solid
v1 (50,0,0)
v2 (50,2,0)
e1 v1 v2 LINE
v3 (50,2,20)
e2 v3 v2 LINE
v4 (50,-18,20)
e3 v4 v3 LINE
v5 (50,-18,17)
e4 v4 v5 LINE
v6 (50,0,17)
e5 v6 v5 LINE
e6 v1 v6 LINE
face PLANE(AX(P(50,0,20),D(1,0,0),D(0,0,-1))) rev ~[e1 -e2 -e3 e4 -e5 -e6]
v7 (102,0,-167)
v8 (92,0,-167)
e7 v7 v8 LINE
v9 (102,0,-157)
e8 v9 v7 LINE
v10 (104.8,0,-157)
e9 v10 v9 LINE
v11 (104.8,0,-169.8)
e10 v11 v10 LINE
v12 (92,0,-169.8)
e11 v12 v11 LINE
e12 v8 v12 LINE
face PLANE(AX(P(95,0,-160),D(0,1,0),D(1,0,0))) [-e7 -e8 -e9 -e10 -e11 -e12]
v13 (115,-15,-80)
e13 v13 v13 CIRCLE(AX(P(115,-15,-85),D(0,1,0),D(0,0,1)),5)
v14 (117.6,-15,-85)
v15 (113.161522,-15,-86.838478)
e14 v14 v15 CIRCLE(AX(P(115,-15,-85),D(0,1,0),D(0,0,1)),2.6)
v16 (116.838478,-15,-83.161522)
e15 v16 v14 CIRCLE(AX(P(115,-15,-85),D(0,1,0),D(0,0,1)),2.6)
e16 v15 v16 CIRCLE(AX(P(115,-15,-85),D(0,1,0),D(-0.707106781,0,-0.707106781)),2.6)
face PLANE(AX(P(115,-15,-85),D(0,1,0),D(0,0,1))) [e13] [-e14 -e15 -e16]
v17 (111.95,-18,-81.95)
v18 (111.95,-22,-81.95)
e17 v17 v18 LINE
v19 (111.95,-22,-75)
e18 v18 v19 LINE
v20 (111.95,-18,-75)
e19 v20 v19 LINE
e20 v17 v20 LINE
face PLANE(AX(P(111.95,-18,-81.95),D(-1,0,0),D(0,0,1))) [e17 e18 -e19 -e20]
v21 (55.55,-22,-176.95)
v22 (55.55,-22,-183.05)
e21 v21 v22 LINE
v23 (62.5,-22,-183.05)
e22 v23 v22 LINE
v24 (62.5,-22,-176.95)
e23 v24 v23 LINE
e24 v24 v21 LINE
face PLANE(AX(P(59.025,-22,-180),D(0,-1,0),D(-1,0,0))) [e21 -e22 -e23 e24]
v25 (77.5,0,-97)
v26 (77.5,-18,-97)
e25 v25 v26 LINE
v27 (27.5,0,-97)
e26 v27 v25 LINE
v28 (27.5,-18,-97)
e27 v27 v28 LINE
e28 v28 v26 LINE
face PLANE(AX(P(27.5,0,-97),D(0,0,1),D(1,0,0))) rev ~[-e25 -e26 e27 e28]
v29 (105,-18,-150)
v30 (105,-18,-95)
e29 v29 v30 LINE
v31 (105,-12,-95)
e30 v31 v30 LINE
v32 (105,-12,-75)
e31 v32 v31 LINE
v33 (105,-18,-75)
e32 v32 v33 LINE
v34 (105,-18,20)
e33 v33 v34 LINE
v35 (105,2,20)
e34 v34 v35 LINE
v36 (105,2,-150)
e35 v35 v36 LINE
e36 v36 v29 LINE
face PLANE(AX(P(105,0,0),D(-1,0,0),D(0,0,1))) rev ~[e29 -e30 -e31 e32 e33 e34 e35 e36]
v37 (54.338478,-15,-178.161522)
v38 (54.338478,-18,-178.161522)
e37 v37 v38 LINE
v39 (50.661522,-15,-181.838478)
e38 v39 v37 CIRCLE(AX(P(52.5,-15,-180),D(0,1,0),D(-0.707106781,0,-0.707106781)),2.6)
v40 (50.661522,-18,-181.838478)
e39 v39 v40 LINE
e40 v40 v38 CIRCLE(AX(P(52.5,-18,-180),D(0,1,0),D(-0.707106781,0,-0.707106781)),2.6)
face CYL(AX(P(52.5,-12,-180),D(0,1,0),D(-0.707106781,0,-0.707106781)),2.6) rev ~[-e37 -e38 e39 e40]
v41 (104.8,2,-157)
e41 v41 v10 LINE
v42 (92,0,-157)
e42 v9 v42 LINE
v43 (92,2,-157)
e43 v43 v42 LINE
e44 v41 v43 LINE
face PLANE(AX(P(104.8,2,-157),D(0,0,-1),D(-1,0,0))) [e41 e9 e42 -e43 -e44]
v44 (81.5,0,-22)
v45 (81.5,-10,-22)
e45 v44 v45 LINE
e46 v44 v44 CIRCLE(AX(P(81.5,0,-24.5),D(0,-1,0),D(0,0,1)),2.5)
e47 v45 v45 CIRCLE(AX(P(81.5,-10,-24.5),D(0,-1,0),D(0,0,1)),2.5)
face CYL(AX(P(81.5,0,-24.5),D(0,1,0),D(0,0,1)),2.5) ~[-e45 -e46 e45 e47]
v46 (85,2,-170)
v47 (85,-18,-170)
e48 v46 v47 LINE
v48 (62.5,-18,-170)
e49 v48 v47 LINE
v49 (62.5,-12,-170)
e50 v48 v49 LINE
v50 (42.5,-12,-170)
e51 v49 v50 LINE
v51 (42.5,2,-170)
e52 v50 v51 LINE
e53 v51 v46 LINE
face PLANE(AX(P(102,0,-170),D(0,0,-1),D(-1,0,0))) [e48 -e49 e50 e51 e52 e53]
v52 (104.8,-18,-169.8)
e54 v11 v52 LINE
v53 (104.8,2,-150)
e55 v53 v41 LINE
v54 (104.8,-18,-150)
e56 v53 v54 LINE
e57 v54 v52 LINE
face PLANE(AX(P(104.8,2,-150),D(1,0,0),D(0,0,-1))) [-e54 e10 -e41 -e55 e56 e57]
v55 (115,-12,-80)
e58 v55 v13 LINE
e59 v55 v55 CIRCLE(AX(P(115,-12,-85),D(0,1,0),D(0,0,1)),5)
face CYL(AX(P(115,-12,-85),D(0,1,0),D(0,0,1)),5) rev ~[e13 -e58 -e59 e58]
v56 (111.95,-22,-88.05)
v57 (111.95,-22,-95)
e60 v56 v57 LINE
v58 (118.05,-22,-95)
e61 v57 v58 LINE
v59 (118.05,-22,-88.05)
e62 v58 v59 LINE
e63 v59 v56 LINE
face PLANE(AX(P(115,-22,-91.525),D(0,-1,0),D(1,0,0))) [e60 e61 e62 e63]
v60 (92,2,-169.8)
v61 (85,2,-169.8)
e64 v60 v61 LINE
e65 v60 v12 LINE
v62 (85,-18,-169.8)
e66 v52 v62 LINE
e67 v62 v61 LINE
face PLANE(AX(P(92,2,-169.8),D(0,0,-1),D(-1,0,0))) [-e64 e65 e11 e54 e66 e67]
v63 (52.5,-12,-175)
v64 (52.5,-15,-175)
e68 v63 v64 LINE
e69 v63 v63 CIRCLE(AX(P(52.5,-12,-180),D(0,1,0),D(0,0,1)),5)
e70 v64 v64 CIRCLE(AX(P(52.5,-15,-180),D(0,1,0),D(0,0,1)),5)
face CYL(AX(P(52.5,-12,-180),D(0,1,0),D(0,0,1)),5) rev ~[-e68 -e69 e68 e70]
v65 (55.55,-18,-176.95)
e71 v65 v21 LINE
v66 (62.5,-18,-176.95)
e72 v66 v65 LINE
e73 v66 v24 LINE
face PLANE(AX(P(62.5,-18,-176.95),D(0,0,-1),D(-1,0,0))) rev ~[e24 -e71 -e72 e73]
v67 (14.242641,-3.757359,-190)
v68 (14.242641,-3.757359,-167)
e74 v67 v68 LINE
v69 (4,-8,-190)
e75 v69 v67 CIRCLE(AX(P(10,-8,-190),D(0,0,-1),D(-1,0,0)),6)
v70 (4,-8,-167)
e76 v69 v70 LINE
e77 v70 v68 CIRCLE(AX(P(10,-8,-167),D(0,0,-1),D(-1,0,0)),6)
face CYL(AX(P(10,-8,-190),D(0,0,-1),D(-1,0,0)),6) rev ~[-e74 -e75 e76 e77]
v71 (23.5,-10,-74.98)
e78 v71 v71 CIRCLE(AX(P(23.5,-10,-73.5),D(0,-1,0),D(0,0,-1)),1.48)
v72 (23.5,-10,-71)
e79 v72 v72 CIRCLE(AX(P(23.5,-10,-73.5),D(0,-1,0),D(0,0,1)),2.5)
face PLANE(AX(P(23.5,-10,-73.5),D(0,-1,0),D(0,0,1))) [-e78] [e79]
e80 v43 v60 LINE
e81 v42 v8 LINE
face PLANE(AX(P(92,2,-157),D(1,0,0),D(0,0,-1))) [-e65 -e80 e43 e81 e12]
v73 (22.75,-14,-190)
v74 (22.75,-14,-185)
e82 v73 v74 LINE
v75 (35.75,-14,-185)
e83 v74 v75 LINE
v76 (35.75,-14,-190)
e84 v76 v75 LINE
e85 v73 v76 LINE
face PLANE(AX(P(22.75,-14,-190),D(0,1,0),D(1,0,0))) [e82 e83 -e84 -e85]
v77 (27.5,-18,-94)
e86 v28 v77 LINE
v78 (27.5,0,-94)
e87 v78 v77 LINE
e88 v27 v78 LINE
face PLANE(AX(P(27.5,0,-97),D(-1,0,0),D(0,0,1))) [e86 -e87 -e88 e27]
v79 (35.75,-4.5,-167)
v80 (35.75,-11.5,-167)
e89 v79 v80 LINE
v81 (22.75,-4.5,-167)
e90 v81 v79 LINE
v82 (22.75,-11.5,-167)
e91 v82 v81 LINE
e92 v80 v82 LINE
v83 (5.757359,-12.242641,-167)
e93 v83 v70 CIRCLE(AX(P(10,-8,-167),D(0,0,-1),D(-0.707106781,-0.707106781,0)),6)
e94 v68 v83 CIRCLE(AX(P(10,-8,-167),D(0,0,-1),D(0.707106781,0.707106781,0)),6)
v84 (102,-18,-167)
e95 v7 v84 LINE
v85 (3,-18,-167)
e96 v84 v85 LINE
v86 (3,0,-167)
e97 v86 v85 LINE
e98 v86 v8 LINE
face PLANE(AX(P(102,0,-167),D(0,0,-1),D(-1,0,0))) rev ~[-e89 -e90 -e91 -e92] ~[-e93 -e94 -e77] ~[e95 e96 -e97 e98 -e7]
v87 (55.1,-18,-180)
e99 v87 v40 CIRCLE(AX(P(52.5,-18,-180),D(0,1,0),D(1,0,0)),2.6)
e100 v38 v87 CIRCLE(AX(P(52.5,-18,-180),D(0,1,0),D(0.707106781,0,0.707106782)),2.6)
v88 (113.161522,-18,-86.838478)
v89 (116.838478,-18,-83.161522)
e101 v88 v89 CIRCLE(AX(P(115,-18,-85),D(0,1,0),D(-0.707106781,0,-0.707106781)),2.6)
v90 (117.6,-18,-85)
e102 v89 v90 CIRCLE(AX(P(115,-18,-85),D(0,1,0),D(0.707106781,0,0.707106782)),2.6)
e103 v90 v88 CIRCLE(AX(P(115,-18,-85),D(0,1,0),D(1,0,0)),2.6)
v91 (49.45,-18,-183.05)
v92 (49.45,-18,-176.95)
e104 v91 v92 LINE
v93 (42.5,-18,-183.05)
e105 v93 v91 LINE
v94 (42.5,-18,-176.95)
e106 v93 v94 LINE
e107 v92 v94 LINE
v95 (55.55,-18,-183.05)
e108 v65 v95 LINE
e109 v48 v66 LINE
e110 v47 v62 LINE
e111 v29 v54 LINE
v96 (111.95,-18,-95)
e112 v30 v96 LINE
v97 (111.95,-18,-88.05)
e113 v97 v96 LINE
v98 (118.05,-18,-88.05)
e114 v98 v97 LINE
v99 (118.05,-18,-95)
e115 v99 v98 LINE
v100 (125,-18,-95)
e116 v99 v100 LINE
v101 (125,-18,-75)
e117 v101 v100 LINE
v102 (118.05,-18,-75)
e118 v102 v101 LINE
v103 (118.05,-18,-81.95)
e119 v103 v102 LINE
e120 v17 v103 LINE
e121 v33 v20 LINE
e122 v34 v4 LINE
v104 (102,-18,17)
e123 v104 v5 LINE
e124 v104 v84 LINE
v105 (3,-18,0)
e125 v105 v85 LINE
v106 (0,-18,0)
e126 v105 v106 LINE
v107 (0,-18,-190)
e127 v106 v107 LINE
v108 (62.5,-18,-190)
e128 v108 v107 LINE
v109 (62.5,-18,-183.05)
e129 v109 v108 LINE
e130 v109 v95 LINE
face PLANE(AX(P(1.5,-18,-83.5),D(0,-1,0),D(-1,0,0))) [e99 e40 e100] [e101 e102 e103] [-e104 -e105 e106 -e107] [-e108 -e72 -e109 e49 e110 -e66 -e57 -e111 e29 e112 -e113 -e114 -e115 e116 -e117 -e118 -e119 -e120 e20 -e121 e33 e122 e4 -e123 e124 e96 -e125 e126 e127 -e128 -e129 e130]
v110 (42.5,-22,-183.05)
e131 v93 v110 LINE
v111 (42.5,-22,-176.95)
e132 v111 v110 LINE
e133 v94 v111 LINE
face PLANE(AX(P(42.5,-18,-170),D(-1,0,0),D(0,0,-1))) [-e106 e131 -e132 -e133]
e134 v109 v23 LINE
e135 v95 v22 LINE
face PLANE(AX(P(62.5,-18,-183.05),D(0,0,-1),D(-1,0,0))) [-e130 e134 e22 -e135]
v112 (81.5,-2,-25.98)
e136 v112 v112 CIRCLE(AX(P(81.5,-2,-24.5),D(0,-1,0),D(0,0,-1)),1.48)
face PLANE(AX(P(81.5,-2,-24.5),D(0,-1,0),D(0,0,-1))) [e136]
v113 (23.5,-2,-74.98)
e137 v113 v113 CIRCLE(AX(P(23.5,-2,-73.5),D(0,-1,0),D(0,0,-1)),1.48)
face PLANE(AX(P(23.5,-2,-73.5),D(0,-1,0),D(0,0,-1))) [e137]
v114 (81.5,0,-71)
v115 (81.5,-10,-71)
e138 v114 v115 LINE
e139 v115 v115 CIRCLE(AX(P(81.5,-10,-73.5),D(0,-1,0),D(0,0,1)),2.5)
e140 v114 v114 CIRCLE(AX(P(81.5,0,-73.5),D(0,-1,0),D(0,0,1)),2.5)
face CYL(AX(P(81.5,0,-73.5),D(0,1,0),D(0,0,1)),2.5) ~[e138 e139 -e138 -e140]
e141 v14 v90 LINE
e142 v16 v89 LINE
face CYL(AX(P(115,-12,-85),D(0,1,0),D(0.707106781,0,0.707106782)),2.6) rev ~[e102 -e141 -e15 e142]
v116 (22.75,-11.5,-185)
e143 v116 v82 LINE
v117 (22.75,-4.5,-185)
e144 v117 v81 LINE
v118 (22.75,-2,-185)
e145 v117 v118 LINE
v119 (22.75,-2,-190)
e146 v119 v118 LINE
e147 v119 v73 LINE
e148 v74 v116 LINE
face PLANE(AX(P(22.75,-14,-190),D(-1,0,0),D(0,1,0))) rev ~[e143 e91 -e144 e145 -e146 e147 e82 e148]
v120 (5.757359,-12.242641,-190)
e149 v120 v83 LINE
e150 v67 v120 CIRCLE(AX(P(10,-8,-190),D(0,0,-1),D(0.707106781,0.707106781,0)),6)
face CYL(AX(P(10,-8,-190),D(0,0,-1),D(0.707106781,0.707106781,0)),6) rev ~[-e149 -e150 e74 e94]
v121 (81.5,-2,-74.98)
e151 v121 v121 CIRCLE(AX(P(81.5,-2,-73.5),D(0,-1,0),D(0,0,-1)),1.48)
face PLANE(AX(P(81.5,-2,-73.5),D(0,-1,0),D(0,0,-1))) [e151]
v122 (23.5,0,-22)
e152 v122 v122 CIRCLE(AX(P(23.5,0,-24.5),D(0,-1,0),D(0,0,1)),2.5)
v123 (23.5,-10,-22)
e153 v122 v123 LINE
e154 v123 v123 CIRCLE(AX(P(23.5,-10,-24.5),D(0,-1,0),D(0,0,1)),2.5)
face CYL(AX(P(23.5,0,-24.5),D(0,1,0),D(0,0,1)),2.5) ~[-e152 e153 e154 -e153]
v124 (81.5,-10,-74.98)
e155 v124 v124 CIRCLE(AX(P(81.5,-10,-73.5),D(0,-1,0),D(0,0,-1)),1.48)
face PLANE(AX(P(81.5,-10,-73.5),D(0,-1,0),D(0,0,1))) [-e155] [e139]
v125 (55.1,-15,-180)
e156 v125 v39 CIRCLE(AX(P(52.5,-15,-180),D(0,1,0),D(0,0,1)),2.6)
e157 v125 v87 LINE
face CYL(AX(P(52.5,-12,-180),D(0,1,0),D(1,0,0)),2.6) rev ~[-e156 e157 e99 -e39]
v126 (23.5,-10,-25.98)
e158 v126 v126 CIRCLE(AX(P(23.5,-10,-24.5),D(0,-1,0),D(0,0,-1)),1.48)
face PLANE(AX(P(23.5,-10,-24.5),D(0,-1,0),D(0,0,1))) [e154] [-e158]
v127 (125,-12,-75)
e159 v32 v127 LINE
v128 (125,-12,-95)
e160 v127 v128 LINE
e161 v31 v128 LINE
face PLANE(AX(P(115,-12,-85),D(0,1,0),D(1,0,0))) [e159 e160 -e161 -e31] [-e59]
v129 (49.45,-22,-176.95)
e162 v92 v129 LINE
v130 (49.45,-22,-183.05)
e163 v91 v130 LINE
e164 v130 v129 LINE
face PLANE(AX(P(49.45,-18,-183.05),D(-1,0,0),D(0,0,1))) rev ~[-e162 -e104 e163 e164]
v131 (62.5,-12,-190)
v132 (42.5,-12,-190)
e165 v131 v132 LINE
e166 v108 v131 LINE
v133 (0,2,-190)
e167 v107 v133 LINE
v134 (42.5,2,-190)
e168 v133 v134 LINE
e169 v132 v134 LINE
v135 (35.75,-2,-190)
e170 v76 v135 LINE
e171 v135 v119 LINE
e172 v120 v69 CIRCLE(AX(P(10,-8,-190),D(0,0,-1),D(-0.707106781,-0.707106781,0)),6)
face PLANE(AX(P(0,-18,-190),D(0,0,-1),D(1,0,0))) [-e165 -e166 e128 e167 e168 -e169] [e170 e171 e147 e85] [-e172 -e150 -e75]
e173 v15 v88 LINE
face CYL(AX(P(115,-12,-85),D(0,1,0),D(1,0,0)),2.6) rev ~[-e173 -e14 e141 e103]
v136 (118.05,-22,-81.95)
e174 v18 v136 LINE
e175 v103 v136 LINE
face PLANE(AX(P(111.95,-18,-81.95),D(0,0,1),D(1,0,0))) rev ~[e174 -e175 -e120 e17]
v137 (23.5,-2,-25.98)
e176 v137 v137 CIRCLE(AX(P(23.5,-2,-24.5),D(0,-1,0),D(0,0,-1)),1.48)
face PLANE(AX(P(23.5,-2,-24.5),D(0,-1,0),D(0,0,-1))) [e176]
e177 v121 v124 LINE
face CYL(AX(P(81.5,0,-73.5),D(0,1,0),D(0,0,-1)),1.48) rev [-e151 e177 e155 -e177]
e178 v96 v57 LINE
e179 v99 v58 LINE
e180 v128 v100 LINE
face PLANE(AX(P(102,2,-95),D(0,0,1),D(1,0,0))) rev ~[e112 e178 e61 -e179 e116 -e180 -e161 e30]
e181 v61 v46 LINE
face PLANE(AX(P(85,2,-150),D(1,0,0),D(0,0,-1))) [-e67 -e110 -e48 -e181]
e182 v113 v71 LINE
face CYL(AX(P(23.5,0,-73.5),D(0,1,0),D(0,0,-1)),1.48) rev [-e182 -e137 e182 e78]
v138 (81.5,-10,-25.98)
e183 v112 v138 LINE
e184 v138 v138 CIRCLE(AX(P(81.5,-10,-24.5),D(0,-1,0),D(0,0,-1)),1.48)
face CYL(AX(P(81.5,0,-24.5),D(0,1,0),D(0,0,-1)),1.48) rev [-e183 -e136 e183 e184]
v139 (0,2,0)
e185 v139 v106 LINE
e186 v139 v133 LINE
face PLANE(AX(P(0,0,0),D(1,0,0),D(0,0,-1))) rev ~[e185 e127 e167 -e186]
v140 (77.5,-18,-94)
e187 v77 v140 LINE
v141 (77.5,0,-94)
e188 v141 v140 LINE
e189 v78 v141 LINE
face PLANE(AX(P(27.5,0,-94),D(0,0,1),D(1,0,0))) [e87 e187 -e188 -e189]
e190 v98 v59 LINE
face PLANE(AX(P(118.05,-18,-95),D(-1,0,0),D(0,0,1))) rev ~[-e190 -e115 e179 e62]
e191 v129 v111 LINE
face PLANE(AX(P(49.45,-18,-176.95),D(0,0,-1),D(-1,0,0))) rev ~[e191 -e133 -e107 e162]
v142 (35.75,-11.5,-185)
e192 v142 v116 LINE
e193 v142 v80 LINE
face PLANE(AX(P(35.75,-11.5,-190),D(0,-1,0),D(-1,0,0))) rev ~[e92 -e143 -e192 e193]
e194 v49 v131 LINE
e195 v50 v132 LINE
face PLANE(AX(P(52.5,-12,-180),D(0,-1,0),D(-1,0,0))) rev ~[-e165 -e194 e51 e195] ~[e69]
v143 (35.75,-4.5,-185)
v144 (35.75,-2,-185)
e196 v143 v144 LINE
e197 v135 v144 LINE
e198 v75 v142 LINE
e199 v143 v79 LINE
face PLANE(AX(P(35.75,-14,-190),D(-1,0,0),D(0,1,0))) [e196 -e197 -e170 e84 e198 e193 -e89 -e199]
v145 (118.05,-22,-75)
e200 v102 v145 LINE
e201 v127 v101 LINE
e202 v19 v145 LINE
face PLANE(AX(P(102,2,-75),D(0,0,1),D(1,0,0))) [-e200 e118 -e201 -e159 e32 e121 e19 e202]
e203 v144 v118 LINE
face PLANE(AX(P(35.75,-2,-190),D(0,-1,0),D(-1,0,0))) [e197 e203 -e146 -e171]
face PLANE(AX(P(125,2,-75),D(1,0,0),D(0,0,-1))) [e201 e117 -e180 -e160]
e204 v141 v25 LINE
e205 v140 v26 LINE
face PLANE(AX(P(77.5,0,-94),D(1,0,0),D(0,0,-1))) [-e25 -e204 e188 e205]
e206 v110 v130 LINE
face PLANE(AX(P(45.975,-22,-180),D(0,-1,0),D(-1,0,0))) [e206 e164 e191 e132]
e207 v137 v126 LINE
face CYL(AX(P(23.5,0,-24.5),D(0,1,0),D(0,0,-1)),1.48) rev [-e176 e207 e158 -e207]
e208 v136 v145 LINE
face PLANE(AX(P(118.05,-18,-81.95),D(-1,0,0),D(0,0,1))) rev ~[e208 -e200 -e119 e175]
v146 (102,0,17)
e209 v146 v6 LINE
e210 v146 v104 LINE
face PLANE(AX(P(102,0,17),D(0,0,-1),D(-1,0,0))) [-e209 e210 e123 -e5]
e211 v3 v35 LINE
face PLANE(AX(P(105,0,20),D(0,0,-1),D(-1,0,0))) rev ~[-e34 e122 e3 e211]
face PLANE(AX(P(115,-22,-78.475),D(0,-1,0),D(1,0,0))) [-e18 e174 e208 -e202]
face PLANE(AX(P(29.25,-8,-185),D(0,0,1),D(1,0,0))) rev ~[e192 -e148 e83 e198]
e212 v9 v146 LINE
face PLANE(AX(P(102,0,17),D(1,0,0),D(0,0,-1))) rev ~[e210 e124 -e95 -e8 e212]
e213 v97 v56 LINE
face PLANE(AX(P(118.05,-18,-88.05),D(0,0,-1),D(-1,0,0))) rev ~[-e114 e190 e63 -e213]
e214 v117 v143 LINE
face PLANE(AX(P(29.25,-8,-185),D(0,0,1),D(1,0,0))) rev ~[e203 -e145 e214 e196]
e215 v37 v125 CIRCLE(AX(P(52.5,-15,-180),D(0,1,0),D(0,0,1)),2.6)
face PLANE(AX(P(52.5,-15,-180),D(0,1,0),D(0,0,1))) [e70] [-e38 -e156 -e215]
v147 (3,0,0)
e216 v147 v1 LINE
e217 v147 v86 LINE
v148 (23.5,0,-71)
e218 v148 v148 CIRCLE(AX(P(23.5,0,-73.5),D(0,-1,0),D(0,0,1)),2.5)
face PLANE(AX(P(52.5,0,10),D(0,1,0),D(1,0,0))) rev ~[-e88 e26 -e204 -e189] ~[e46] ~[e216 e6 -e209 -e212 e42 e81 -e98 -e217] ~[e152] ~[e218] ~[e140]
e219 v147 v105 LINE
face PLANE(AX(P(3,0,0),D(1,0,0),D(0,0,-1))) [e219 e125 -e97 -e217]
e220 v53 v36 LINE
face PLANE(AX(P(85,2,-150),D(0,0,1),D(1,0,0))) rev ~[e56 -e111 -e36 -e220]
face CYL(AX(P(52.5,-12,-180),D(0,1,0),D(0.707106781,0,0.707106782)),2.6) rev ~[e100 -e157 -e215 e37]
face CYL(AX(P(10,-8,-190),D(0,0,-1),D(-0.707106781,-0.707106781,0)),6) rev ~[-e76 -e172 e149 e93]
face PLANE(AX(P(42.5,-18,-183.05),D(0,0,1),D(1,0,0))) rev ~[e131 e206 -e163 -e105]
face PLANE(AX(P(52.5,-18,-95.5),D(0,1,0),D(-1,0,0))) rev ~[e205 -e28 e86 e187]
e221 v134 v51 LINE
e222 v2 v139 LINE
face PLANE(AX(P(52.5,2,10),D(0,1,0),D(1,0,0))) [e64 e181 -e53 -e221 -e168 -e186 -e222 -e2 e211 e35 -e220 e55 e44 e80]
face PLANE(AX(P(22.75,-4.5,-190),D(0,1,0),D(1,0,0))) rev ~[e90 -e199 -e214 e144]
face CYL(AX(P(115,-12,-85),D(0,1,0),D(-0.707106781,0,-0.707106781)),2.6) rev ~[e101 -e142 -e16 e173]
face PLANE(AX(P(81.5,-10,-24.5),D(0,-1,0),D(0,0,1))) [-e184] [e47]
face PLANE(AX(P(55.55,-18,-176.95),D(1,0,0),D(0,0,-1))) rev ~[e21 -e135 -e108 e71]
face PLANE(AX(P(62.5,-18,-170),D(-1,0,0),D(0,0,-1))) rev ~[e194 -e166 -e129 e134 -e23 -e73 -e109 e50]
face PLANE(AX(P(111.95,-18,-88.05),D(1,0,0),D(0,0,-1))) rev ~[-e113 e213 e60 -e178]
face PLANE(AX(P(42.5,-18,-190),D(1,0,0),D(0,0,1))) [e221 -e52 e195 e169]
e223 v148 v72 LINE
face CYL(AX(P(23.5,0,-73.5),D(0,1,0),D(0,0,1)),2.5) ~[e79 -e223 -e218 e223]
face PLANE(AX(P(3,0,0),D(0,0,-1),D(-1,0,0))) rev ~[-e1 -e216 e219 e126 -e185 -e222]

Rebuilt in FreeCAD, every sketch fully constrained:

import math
import FreeCAD as App
import Part
import Sketcher
from FreeCAD import Vector


def add_polygon(sketch, points):
    """Adds a closed chain of lines whose ends are joined by coincident constraints."""
    first, n = sketch.GeometryCount, len(points)
    for a, b in zip(points, points[1:] + points[:1]):
        sketch.addGeometry(Part.LineSegment(App.Vector(*a, 0), App.Vector(*b, 0)), False)
    for i in range(n):
        sketch.addConstraint(Sketcher.Constraint("Coincident", first + i, 2, first + (i + 1) % n, 1))

doc = App.newDocument("Part")
body = doc.addObject("PartDesign::Body", "Body")

# Sketch on XZ plane
sketch1 = body.newObject("Sketcher::SketchObject", "Sketch")
sketch1.AttachmentSupport = (doc.getObject("XZ_Plane"), [""])
sketch1.MapMode = "FlatFace"
add_polygon(sketch1, [(0, -170), (0, 0), (105, 0), (105, -170)])  # lines 0-3
sketch1.addConstraint(Sketcher.Constraint("Vertical", 0))
sketch1.addConstraint(Sketcher.Constraint("Horizontal", 1))
sketch1.addConstraint(Sketcher.Constraint("Vertical", 2))
sketch1.addConstraint(Sketcher.Constraint("Horizontal", 3))
sketch1.addConstraint(Sketcher.Constraint("Coincident", 0, 2, -1, 1))
sketch1.addConstraint(Sketcher.Constraint("DistanceX", 1, 1, 1, 2, 105.0))
sketch1.addConstraint(Sketcher.Constraint("DistanceY", 0, 1, 0, 2, 170.0))
pad1 = body.newObject("PartDesign::Pad", "Pad")
pad1.Profile = sketch1
pad1.Length = 2
pad1.Reversed = True

# Sketch on XZ plane
sketch2 = body.newObject("Sketcher::SketchObject", "Sketch001")
sketch2.AttachmentSupport = (doc.getObject("XZ_Plane"), [""])
sketch2.MapMode = "FlatFace"
sketch2.AttachmentOffset = App.Placement(Vector(0, 0, -2), App.Rotation())
add_polygon(sketch2, [(102, -95), (102, -75), (125, -75), (125, -95)])  # lines 0-3
sketch2.addConstraint(Sketcher.Constraint("Vertical", 0))
sketch2.addConstraint(Sketcher.Constraint("Horizontal", 1))
sketch2.addConstraint(Sketcher.Constraint("Vertical", 2))
sketch2.addConstraint(Sketcher.Constraint("Horizontal", 3))
sketch2.addConstraint(Sketcher.Constraint("DistanceX", 1, 1, 1, 2, 23.0))
sketch2.addConstraint(Sketcher.Constraint("DistanceY", 0, 1, 0, 2, 20.0))
sketch2.addConstraint(Sketcher.Constraint("DistanceX", -1, 1, 0, 2, 102.0))
sketch2.addConstraint(Sketcher.Constraint("DistanceY", 0, 2, -1, 1, 75.0))
pad2 = body.newObject("PartDesign::Pad", "Pad001")
pad2.Profile = sketch2
pad2.Length = 20

# Sketch on XZ plane
sketch3 = body.newObject("Sketcher::SketchObject", "Sketch002")
sketch3.AttachmentSupport = (doc.getObject("XZ_Plane"), [""])
sketch3.MapMode = "FlatFace"
sketch3.AttachmentOffset = App.Placement(Vector(0, 0, -2), App.Rotation())
add_polygon(sketch3, [(105, -95), (105, -75), (125, -75), (125, -95)])  # lines 0-3
sketch3.addConstraint(Sketcher.Constraint("Vertical", 0))
sketch3.addConstraint(Sketcher.Constraint("Horizontal", 1))
sketch3.addConstraint(Sketcher.Constraint("Vertical", 2))
sketch3.addConstraint(Sketcher.Constraint("Horizontal", 3))
sketch3.addConstraint(Sketcher.Constraint("Equal", 3, 0))
sketch3.addConstraint(Sketcher.Constraint("DistanceX", 1, 1, 1, 2, 20.0))
sketch3.addConstraint(Sketcher.Constraint("DistanceX", -1, 1, 0, 2, 105.0))
sketch3.addConstraint(Sketcher.Constraint("DistanceY", 0, 2, -1, 1, 75.0))
pocket1 = body.newObject("PartDesign::Pocket", "Pocket")
pocket1.Profile = sketch3
pocket1.Length = 14
pocket1.Reversed = True

# Sketch on XZ plane
sketch4 = body.newObject("Sketcher::SketchObject", "Sketch003")
sketch4.AttachmentSupport = (doc.getObject("XZ_Plane"), [""])
sketch4.MapMode = "FlatFace"
sketch4.AttachmentOffset = App.Placement(Vector(0, 0, 12), App.Rotation())
sketch4.addGeometry(Part.ArcOfCircle(Part.Circle(Vector(115, -85, 0), Vector(0, 0, 1), 2.6), math.radians(-135), math.radians(0)), False)
sketch4.addGeometry(Part.ArcOfCircle(Part.Circle(Vector(115, -85, 0), Vector(0, 0, 1), 2.6), math.radians(45), math.radians(225)), False)
sketch4.addGeometry(Part.ArcOfCircle(Part.Circle(Vector(115, -85, 0), Vector(0, 0, 1), 2.6), math.radians(0), math.radians(45)), False)
sketch4.addConstraint(Sketcher.Constraint("Tangent", 0, 1, 1, 2))
sketch4.addConstraint(Sketcher.Constraint("Tangent", 1, 1, 2, 2))
sketch4.addConstraint(Sketcher.Constraint("Tangent", 2, 1, 0, 2))
sketch4.addConstraint(Sketcher.Constraint("Horizontal", 1, 3, 2, 1))
sketch4.addConstraint(Sketcher.Constraint("Radius", 0, 2.6))
sketch4.addConstraint(Sketcher.Constraint("DistanceX", -1, 1, 0, 3, 115.0))
sketch4.addConstraint(Sketcher.Constraint("DistanceY", 0, 3, -1, 1, 85.0))
sketch4.addConstraint(Sketcher.Constraint("DistanceX", -1, 1, 0, 1, 113.161522))
sketch4.addConstraint(Sketcher.Constraint("DistanceX", -1, 1, 1, 1, 116.838478))
pocket2 = body.newObject("PartDesign::Pocket", "Pocket001")
pocket2.Profile = sketch4
pocket2.Length = 14
pocket2.Reversed = True

# Sketch on XZ plane
sketch5 = body.newObject("Sketcher::SketchObject", "Sketch004")
sketch5.AttachmentSupport = (doc.getObject("XZ_Plane"), [""])
sketch5.MapMode = "FlatFace"
sketch5.AttachmentOffset = App.Placement(Vector(0, 0, 12), App.Rotation())
sketch5.addGeometry(Part.Circle(Vector(115, -85, 0), Vector(0, 0, 1), 5), False)
sketch5.addGeometry(Part.Circle(Vector(115, -85, 0), Vector(0, 0, 1), 2.6), False)
sketch5.addConstraint(Sketcher.Constraint("Coincident", 1, 3, 0, 3))
sketch5.addConstraint(Sketcher.Constraint("Diameter", 0, 10.0))
sketch5.addConstraint(Sketcher.Constraint("Diameter", 1, 5.2))
sketch5.addConstraint(Sketcher.Constraint("DistanceX", -1, 1, 0, 3, 115.0))
sketch5.addConstraint(Sketcher.Constraint("DistanceY", 0, 3, -1, 1, 85.0))
pocket3 = body.newObject("PartDesign::Pocket", "Pocket002")
pocket3.Profile = sketch5
pocket3.Length = 3
pocket3.Reversed = True

# Sketch on XZ plane
sketch6 = body.newObject("Sketcher::SketchObject", "Sketch005")
sketch6.AttachmentSupport = (doc.getObject("XZ_Plane"), [""])
sketch6.MapMode = "FlatFace"
add_polygon(sketch6, [(102, -95), (102, -170), (105, -170), (105, -95)])  # lines 0-3
add_polygon(sketch6, [(102, 0), (102, -75), (105, -75), (105, 0)])  # lines 4-7
sketch6.addConstraint(Sketcher.Constraint("Vertical", 0))
sketch6.addConstraint(Sketcher.Constraint("Horizontal", 1))
sketch6.addConstraint(Sketcher.Constraint("Vertical", 2))
sketch6.addConstraint(Sketcher.Constraint("Horizontal", 3))
sketch6.addConstraint(Sketcher.Constraint("Vertical", 4))
sketch6.addConstraint(Sketcher.Constraint("Horizontal", 5))
sketch6.addConstraint(Sketcher.Constraint("Vertical", 6))
sketch6.addConstraint(Sketcher.Constraint("Horizontal", 7))
sketch6.addConstraint(Sketcher.Constraint("PointOnObject", 6, 2, -1))
sketch6.addConstraint(Sketcher.Constraint("Vertical", 3, 2, 4, 2))
sketch6.addConstraint(Sketcher.Constraint("Vertical", 2, 2, 5, 2))
sketch6.addConstraint(Sketcher.Constraint("Equal", 2, 4))
sketch6.addConstraint(Sketcher.Constraint("DistanceX", 1, 1, 1, 2, 3.0))
sketch6.addConstraint(Sketcher.Constraint("DistanceY", 0, 2, 0, 1, 75.0))
sketch6.addConstraint(Sketcher.Constraint("DistanceX", -1, 1, 0, 2, 102.0))
sketch6.addConstraint(Sketcher.Constraint("DistanceY", 0, 2, -1, 1, 170.0))
pad3 = body.newObject("PartDesign::Pad", "Pad002")
pad3.Profile = sketch6
pad3.Length = 18

# Sketch on XZ plane
sketch7 = body.newObject("Sketcher::SketchObject", "Sketch006")
sketch7.AttachmentSupport = (doc.getObject("XZ_Plane"), [""])
sketch7.MapMode = "FlatFace"
add_polygon(sketch7, [(102, -170), (102, -167), (0, -167), (0, -170)])  # lines 0-3
sketch7.addConstraint(Sketcher.Constraint("Vertical", 0))
sketch7.addConstraint(Sketcher.Constraint("Horizontal", 1))
sketch7.addConstraint(Sketcher.Constraint("Vertical", 2))
sketch7.addConstraint(Sketcher.Constraint("Horizontal", 3))
sketch7.addConstraint(Sketcher.Constraint("PointOnObject", 1, 2, -2))
sketch7.addConstraint(Sketcher.Constraint("DistanceX", 1, 2, 1, 1, 102.0))
sketch7.addConstraint(Sketcher.Constraint("DistanceY", 0, 1, 0, 2, 3.0))
sketch7.addConstraint(Sketcher.Constraint("DistanceY", 0, 2, -1, 1, 167.0))
pad4 = body.newObject("PartDesign::Pad", "Pad003")
pad4.Profile = sketch7
pad4.Length = 18

# Sketch on XZ plane
sketch8 = body.newObject("Sketcher::SketchObject", "Sketch007")
sketch8.AttachmentSupport = (doc.getObject("XZ_Plane"), [""])
sketch8.MapMode = "FlatFace"
sketch8.AttachmentOffset = App.Placement(Vector(0, 0, 18), App.Rotation())
add_polygon(sketch8, [(62.5, -190), (62.5, -170), (42.5, -170), (42.5, -190)])  # lines 0-3
sketch8.addConstraint(Sketcher.Constraint("Vertical", 0))
sketch8.addConstraint(Sketcher.Constraint("Horizontal", 1))
sketch8.addConstraint(Sketcher.Constraint("Vertical", 2))
sketch8.addConstraint(Sketcher.Constraint("Horizontal", 3))
sketch8.addConstraint(Sketcher.Constraint("Equal", 3, 0))
sketch8.addConstraint(Sketcher.Constraint("DistanceX", 1, 2, 1, 1, 20.0))
sketch8.addConstraint(Sketcher.Constraint("DistanceY", 0, 2, -1, 1, 170.0))
sketch8.addConstraint(Sketcher.Constraint("DistanceX", -1, 1, 0, 2, 62.5))
pad5 = body.newObject("PartDesign::Pad", "Pad004")
pad5.Profile = sketch8
pad5.Length = 6
pad5.Reversed = True

# Sketch on XZ plane
sketch9 = body.newObject("Sketcher::SketchObject", "Sketch008")
sketch9.AttachmentSupport = (doc.getObject("XZ_Plane"), [""])
sketch9.MapMode = "FlatFace"
sketch9.AttachmentOffset = App.Placement(Vector(0, 0, 12), App.Rotation())
sketch9.addGeometry(Part.ArcOfCircle(Part.Circle(Vector(52.5, -180, 0), Vector(0, 0, 1), 2.6), math.radians(-135), math.radians(0)), False)
sketch9.addGeometry(Part.ArcOfCircle(Part.Circle(Vector(52.5, -180, 0), Vector(0, 0, 1), 2.6), math.radians(45), math.radians(225)), False)
sketch9.addGeometry(Part.ArcOfCircle(Part.Circle(Vector(52.5, -180, 0), Vector(0, 0, 1), 2.6), math.radians(0), math.radians(45)), False)
sketch9.addConstraint(Sketcher.Constraint("Tangent", 0, 1, 1, 2))
sketch9.addConstraint(Sketcher.Constraint("Tangent", 1, 1, 2, 2))
sketch9.addConstraint(Sketcher.Constraint("Tangent", 2, 1, 0, 2))
sketch9.addConstraint(Sketcher.Constraint("Horizontal", 1, 3, 2, 1))
sketch9.addConstraint(Sketcher.Constraint("Radius", 0, 2.6))
sketch9.addConstraint(Sketcher.Constraint("DistanceY", 0, 3, -1, 1, 180.0))
sketch9.addConstraint(Sketcher.Constraint("DistanceX", -1, 1, 0, 3, 52.5))
sketch9.addConstraint(Sketcher.Constraint("DistanceX", -1, 1, 0, 1, 50.661522))
sketch9.addConstraint(Sketcher.Constraint("DistanceX", -1, 1, 1, 1, 54.338478))
pocket4 = body.newObject("PartDesign::Pocket", "Pocket003")
pocket4.Profile = sketch9
pocket4.Length = 6
pocket4.Reversed = True

# Sketch on XZ plane
sketch10 = body.newObject("Sketcher::SketchObject", "Sketch009")
sketch10.AttachmentSupport = (doc.getObject("XZ_Plane"), [""])
sketch10.MapMode = "FlatFace"
sketch10.AttachmentOffset = App.Placement(Vector(0, 0, 12), App.Rotation())
sketch10.addGeometry(Part.Circle(Vector(52.5, -180, 0), Vector(0, 0, 1), 5), False)
sketch10.addGeometry(Part.Circle(Vector(52.5, -180, 0), Vector(0, 0, 1), 2.6), False)
sketch10.addConstraint(Sketcher.Constraint("Coincident", 1, 3, 0, 3))
sketch10.addConstraint(Sketcher.Constraint("Diameter", 0, 10.0))
sketch10.addConstraint(Sketcher.Constraint("Diameter", 1, 5.2))
sketch10.addConstraint(Sketcher.Constraint("DistanceY", 0, 3, -1, 1, 180.0))
sketch10.addConstraint(Sketcher.Constraint("DistanceX", -1, 1, 0, 3, 52.5))
pocket5 = body.newObject("PartDesign::Pocket", "Pocket004")
pocket5.Profile = sketch10
pocket5.Length = 3
pocket5.Reversed = True

# Sketch on XZ plane
sketch11 = body.newObject("Sketcher::SketchObject", "Sketch010")
sketch11.AttachmentSupport = (doc.getObject("XZ_Plane"), [""])
sketch11.MapMode = "FlatFace"
sketch11.AttachmentOffset = App.Placement(Vector(0, 0, 18), App.Rotation())
add_polygon(sketch11, [(118.05, -88.05), (111.95, -88.05), (111.95, -95), (118.05, -95)])  # lines 0-3
add_polygon(sketch11, [(111.95, -75), (111.95, -81.95), (118.05, -81.95), (118.05, -75)])  # lines 4-7
sketch11.addConstraint(Sketcher.Constraint("Horizontal", 0))
sketch11.addConstraint(Sketcher.Constraint("Vertical", 1))
sketch11.addConstraint(Sketcher.Constraint("Horizontal", 2))
sketch11.addConstraint(Sketcher.Constraint("Vertical", 3))
sketch11.addConstraint(Sketcher.Constraint("Vertical", 4))
sketch11.addConstraint(Sketcher.Constraint("Horizontal", 5))
sketch11.addConstraint(Sketcher.Constraint("Vertical", 6))
sketch11.addConstraint(Sketcher.Constraint("Horizontal", 7))
sketch11.addConstraint(Sketcher.Constraint("Vertical", 1, 2, 4, 2))
sketch11.addConstraint(Sketcher.Constraint("Vertical", 3, 2, 5, 2))
sketch11.addConstraint(Sketcher.Constraint("Equal", 3, 4))
sketch11.addConstraint(Sketcher.Constraint("DistanceX", 0, 2, 0, 1, 6.1))
sketch11.addConstraint(Sketcher.Constraint("DistanceY", 1, 2, -1, 1, 95.0))
sketch11.addConstraint(Sketcher.Constraint("DistanceY", 6, 2, -1, 1, 75.0))
sketch11.addConstraint(Sketcher.Constraint("DistanceY", 1, 2, 1, 1, 6.95))
sketch11.addConstraint(Sketcher.Constraint("DistanceX", -1, 1, 0, 2, 111.95))
pad6 = body.newObject("PartDesign::Pad", "Pad005")
pad6.Profile = sketch11
pad6.Length = 4

# Sketch on XZ plane
sketch12 = body.newObject("Sketcher::SketchObject", "Sketch011")
sketch12.AttachmentSupport = (doc.getObject("XZ_Plane"), [""])
sketch12.MapMode = "FlatFace"
sketch12.AttachmentOffset = App.Placement(Vector(0, 0, 18), App.Rotation())
add_polygon(sketch12, [(49.45, -183.05), (49.45, -176.95), (42.5, -176.95), (42.5, -183.05)])  # lines 0-3
add_polygon(sketch12, [(62.5, -183.05), (62.5, -176.95), (55.55, -176.95), (55.55, -183.05)])  # lines 4-7
sketch12.addConstraint(Sketcher.Constraint("Vertical", 0))
sketch12.addConstraint(Sketcher.Constraint("Horizontal", 1))
sketch12.addConstraint(Sketcher.Constraint("Vertical", 2))
sketch12.addConstraint(Sketcher.Constraint("Horizontal", 3))
sketch12.addConstraint(Sketcher.Constraint("Vertical", 4))
sketch12.addConstraint(Sketcher.Constraint("Horizontal", 5))
sketch12.addConstraint(Sketcher.Constraint("Vertical", 6))
sketch12.addConstraint(Sketcher.Constraint("Horizontal", 7))
sketch12.addConstraint(Sketcher.Constraint("Horizontal", 1, 2, 4, 2))
sketch12.addConstraint(Sketcher.Constraint("Horizontal", 3, 2, 6, 2))
sketch12.addConstraint(Sketcher.Constraint("Equal", 3, 5))
sketch12.addConstraint(Sketcher.Constraint("DistanceY", 0, 1, 0, 2, 6.1))
sketch12.addConstraint(Sketcher.Constraint("DistanceX", 1, 2, 4, 2, 20.0))
sketch12.addConstraint(Sketcher.Constraint("DistanceX", 1, 2, 1, 1, 6.95))
sketch12.addConstraint(Sketcher.Constraint("DistanceX", -1, 1, 1, 2, 42.5))
sketch12.addConstraint(Sketcher.Constraint("DistanceY", 0, 2, -1, 1, 176.95))
pad7 = body.newObject("PartDesign::Pad", "Pad006")
pad7.Profile = sketch12
pad7.Length = 4

# Sketch on XZ plane
sketch13 = body.newObject("Sketcher::SketchObject", "Sketch012")
sketch13.AttachmentSupport = (doc.getObject("XZ_Plane"), [""])
sketch13.MapMode = "FlatFace"
sketch13.AttachmentOffset = App.Placement(Vector(0, 0, -2), App.Rotation())
add_polygon(sketch13, [(50, -3), (50, 0), (105, 0), (105, -3)])  # lines 0-3
sketch13.addConstraint(Sketcher.Constraint("Vertical", 0))
sketch13.addConstraint(Sketcher.Constraint("Horizontal", 1))
sketch13.addConstraint(Sketcher.Constraint("Vertical", 2))
sketch13.addConstraint(Sketcher.Constraint("Horizontal", 3))
sketch13.addConstraint(Sketcher.Constraint("PointOnObject", 0, 2, -1))
sketch13.addConstraint(Sketcher.Constraint("DistanceX", 1, 1, 1, 2, 55.0))
sketch13.addConstraint(Sketcher.Constraint("DistanceY", 0, 1, 0, 2, 3.0))
sketch13.addConstraint(Sketcher.Constraint("DistanceX", -1, 1, 0, 2, 50.0))
pad8 = body.newObject("PartDesign::Pad", "Pad007")
pad8.Profile = sketch13
pad8.Length = 20

# Sketch on XZ plane
sketch14 = body.newObject("Sketcher::SketchObject", "Sketch013")
sketch14.AttachmentSupport = (doc.getObject("XZ_Plane"), [""])
sketch14.MapMode = "FlatFace"
sketch14.AttachmentOffset = App.Placement(Vector(0, 0, -2), App.Rotation())
add_polygon(sketch14, [(85, -170), (85, -150), (105, -150), (105, -170)])  # lines 0-3
sketch14.addConstraint(Sketcher.Constraint("Vertical", 0))
sketch14.addConstraint(Sketcher.Constraint("Horizontal", 1))
sketch14.addConstraint(Sketcher.Constraint("Vertical", 2))
sketch14.addConstraint(Sketcher.Constraint("Horizontal", 3))
sketch14.addConstraint(Sketcher.Constraint("Equal", 3, 0))
sketch14.addConstraint(Sketcher.Constraint("DistanceX", 1, 1, 1, 2, 20.0))
sketch14.addConstraint(Sketcher.Constraint("DistanceX", -1, 1, 0, 2, 85.0))
sketch14.addConstraint(Sketcher.Constraint("DistanceY", 0, 2, -1, 1, 150.0))
pocket6 = body.newObject("PartDesign::Pocket", "Pocket005")
pocket6.Profile = sketch14
pocket6.Length = 2
pocket6.Reversed = True

# Sketch on XZ plane
sketch15 = body.newObject("Sketcher::SketchObject", "Sketch014")
sketch15.AttachmentSupport = (doc.getObject("XZ_Plane"), [""])
sketch15.MapMode = "FlatFace"
sketch15.AttachmentOffset = App.Placement(Vector(0, 0, 18), App.Rotation())
add_polygon(sketch15, [(0, -170), (0, -190), (42.5, -190), (42.5, -170)])  # lines 0-3
sketch15.addConstraint(Sketcher.Constraint("Vertical", 0))
sketch15.addConstraint(Sketcher.Constraint("Horizontal", 1))
sketch15.addConstraint(Sketcher.Constraint("Vertical", 2))
sketch15.addConstraint(Sketcher.Constraint("Horizontal", 3))
sketch15.addConstraint(Sketcher.Constraint("PointOnObject", 0, 2, -2))
sketch15.addConstraint(Sketcher.Constraint("DistanceY", 0, 2, 0, 1, 20.0))
sketch15.addConstraint(Sketcher.Constraint("DistanceX", 1, 1, 1, 2, 42.5))
sketch15.addConstraint(Sketcher.Constraint("DistanceY", 0, 2, -1, 1, 190.0))
pad9 = body.newObject("PartDesign::Pad", "Pad008")
pad9.Profile = sketch15
pad9.Length = 20
pad9.Reversed = True

# Sketch on XY plane
sketch16 = body.newObject("Sketcher::SketchObject", "Sketch015")
sketch16.AttachmentSupport = (doc.getObject("XY_Plane"), [""])
sketch16.MapMode = "FlatFace"
sketch16.AttachmentOffset = App.Placement(Vector(0, 0, -190), App.Rotation())
sketch16.addGeometry(Part.ArcOfCircle(Part.Circle(Vector(10, -8, 0), Vector(0, 0, 1), 6), math.radians(45), math.radians(180)), False)
sketch16.addGeometry(Part.ArcOfCircle(Part.Circle(Vector(10, -8, 0), Vector(0, 0, 1), 6), math.radians(-135), math.radians(45)), False)
sketch16.addGeometry(Part.ArcOfCircle(Part.Circle(Vector(10, -8, 0), Vector(0, 0, 1), 6), math.radians(180), math.radians(225)), False)
sketch16.addConstraint(Sketcher.Constraint("Tangent", 0, 1, 1, 2))
sketch16.addConstraint(Sketcher.Constraint("Tangent", 1, 1, 2, 2))
sketch16.addConstraint(Sketcher.Constraint("Tangent", 2, 1, 0, 2))
sketch16.addConstraint(Sketcher.Constraint("Horizontal", 1, 3, 2, 1))
sketch16.addConstraint(Sketcher.Constraint("Radius", 0, 6.0))
sketch16.addConstraint(Sketcher.Constraint("DistanceX", -1, 1, 0, 3, 10.0))
sketch16.addConstraint(Sketcher.Constraint("DistanceY", 0, 3, -1, 1, 8.0))
sketch16.addConstraint(Sketcher.Constraint("DistanceX", -1, 1, 0, 1, 14.242641))
sketch16.addConstraint(Sketcher.Constraint("DistanceX", -1, 1, 1, 1, 5.757359))
pocket7 = body.newObject("PartDesign::Pocket", "Pocket006")
pocket7.Profile = sketch16
pocket7.Length = 30
pocket7.Reversed = True

# Sketch on XY plane
sketch17 = body.newObject("Sketcher::SketchObject", "Sketch016")
sketch17.AttachmentSupport = (doc.getObject("XY_Plane"), [""])
sketch17.MapMode = "FlatFace"
sketch17.AttachmentOffset = App.Placement(Vector(0, 0, -190), App.Rotation())
add_polygon(sketch17, [(22.75, -4.5), (35.75, -4.5), (35.75, -11.5), (22.75, -11.5)])  # lines 0-3
sketch17.addConstraint(Sketcher.Constraint("Horizontal", 0))
sketch17.addConstraint(Sketcher.Constraint("Vertical", 1))
sketch17.addConstraint(Sketcher.Constraint("Horizontal", 2))
sketch17.addConstraint(Sketcher.Constraint("Vertical", 3))
sketch17.addConstraint(Sketcher.Constraint("DistanceX", 0, 1, 0, 2, 13.0))
sketch17.addConstraint(Sketcher.Constraint("DistanceY", 1, 2, 1, 1, 7.0))
sketch17.addConstraint(Sketcher.Constraint("DistanceY", 0, 2, -1, 1, 4.5))
sketch17.addConstraint(Sketcher.Constraint("DistanceX", -1, 1, 0, 2, 35.75))
pocket8 = body.newObject("PartDesign::Pocket", "Pocket007")
pocket8.Profile = sketch17
pocket8.Length = 30
pocket8.Reversed = True

# Sketch on XZ plane
sketch18 = body.newObject("Sketcher::SketchObject", "Sketch017")
sketch18.AttachmentSupport = (doc.getObject("XZ_Plane"), [""])
sketch18.MapMode = "FlatFace"
add_polygon(sketch18, [(85, -170), (85, -169.8), (104.8, -169.8), (104.8, -150), (105, -150), (105, -170)])  # lines 0-5
sketch18.addConstraint(Sketcher.Constraint("Vertical", 0))
sketch18.addConstraint(Sketcher.Constraint("Horizontal", 1))
sketch18.addConstraint(Sketcher.Constraint("Vertical", 2))
sketch18.addConstraint(Sketcher.Constraint("Horizontal", 3))
sketch18.addConstraint(Sketcher.Constraint("Vertical", 4))
sketch18.addConstraint(Sketcher.Constraint("Horizontal", 5))
sketch18.addConstraint(Sketcher.Constraint("Equal", 3, 0))
sketch18.addConstraint(Sketcher.Constraint("Equal", 1, 2))
sketch18.addConstraint(Sketcher.Constraint("DistanceX", 5, 2, 5, 1, 20.0))
sketch18.addConstraint(Sketcher.Constraint("DistanceX", 1, 1, 1, 2, 19.8))
sketch18.addConstraint(Sketcher.Constraint("DistanceX", -1, 1, 0, 2, 85.0))
sketch18.addConstraint(Sketcher.Constraint("DistanceY", 2, 2, -1, 1, 150.0))
pocket9 = body.newObject("PartDesign::Pocket", "Pocket008")
pocket9.Profile = sketch18
pocket9.Length = 30
pocket9.Reversed = True

# Sketch on XZ plane
sketch19 = body.newObject("Sketcher::SketchObject", "Sketch018")
sketch19.AttachmentSupport = (doc.getObject("XZ_Plane"), [""])
sketch19.MapMode = "FlatFace"
sketch19.AttachmentOffset = App.Placement(Vector(0, 0, -2), App.Rotation())
add_polygon(sketch19, [(92, -157), (92, -169.8), (85, -169.8), (85, -150), (104.8, -150), (104.8, -157)])  # lines 0-5
sketch19.addConstraint(Sketcher.Constraint("Vertical", 0))
sketch19.addConstraint(Sketcher.Constraint("Horizontal", 1))
sketch19.addConstraint(Sketcher.Constraint("Vertical", 2))
sketch19.addConstraint(Sketcher.Constraint("Horizontal", 3))
sketch19.addConstraint(Sketcher.Constraint("Vertical", 4))
sketch19.addConstraint(Sketcher.Constraint("Horizontal", 5))
sketch19.addConstraint(Sketcher.Constraint("Equal", 5, 0))
sketch19.addConstraint(Sketcher.Constraint("Equal", 3, 2))
sketch19.addConstraint(Sketcher.Constraint("DistanceX", 1, 2, 1, 1, 7.0))
sketch19.addConstraint(Sketcher.Constraint("DistanceX", 3, 1, 3, 2, 19.8))
sketch19.addConstraint(Sketcher.Constraint("DistanceX", -1, 1, 0, 2, 92.0))
sketch19.addConstraint(Sketcher.Constraint("DistanceY", 2, 2, -1, 1, 150.0))
pad10 = body.newObject("PartDesign::Pad", "Pad009")
pad10.Profile = sketch19
pad10.Length = 2

# Sketch on XY plane
sketch20 = body.newObject("Sketcher::SketchObject", "Sketch019")
sketch20.AttachmentSupport = (doc.getObject("XY_Plane"), [""])
sketch20.MapMode = "FlatFace"
sketch20.AttachmentOffset = App.Placement(Vector(0, 0, -190), App.Rotation())
add_polygon(sketch20, [(22.75, -14), (22.75, -2), (35.75, -2), (35.75, -14)])  # lines 0-3
sketch20.addConstraint(Sketcher.Constraint("Vertical", 0))
sketch20.addConstraint(Sketcher.Constraint("Horizontal", 1))
sketch20.addConstraint(Sketcher.Constraint("Vertical", 2))
sketch20.addConstraint(Sketcher.Constraint("Horizontal", 3))
sketch20.addConstraint(Sketcher.Constraint("DistanceX", 1, 1, 1, 2, 13.0))
sketch20.addConstraint(Sketcher.Constraint("DistanceY", 0, 1, 0, 2, 12.0))
sketch20.addConstraint(Sketcher.Constraint("DistanceY", 0, 2, -1, 1, 2.0))
sketch20.addConstraint(Sketcher.Constraint("DistanceX", -1, 1, 0, 2, 22.75))
pocket10 = body.newObject("PartDesign::Pocket", "Pocket009")
pocket10.Profile = sketch20
pocket10.Length = 5
pocket10.Reversed = True

# Sketch on XZ plane
sketch21 = body.newObject("Sketcher::SketchObject", "Sketch020")
sketch21.AttachmentSupport = (doc.getObject("XZ_Plane"), [""])
sketch21.MapMode = "FlatFace"
sketch21.AttachmentOffset = App.Placement(Vector(0, 0, 18), App.Rotation())
add_polygon(sketch21, [(102, -3), (102, 0), (50, 0), (50, -3)])  # lines 0-3
sketch21.addConstraint(Sketcher.Constraint("Vertical", 0))
sketch21.addConstraint(Sketcher.Constraint("Horizontal", 1))
sketch21.addConstraint(Sketcher.Constraint("Vertical", 2))
sketch21.addConstraint(Sketcher.Constraint("Horizontal", 3))
sketch21.addConstraint(Sketcher.Constraint("PointOnObject", 0, 2, -1))
sketch21.addConstraint(Sketcher.Constraint("DistanceX", 1, 2, 1, 1, 52.0))
sketch21.addConstraint(Sketcher.Constraint("DistanceY", 0, 1, 0, 2, 3.0))
sketch21.addConstraint(Sketcher.Constraint("DistanceX", -1, 1, 0, 2, 102.0))
pocket11 = body.newObject("PartDesign::Pocket", "Pocket010")
pocket11.Profile = sketch21
pocket11.Length = 18

# Sketch on XZ plane
sketch22 = body.newObject("Sketcher::SketchObject", "Sketch021")
sketch22.AttachmentSupport = (doc.getObject("XZ_Plane"), [""])
sketch22.MapMode = "FlatFace"
sketch22.AttachmentOffset = App.Placement(Vector(0, 0, -2), App.Rotation())
add_polygon(sketch22, [(0, 0), (0, 20), (105, 20), (105, 0)])  # lines 0-3
sketch22.addConstraint(Sketcher.Constraint("Vertical", 0))
sketch22.addConstraint(Sketcher.Constraint("Horizontal", 1))
sketch22.addConstraint(Sketcher.Constraint("Vertical", 2))
sketch22.addConstraint(Sketcher.Constraint("Horizontal", 3))
sketch22.addConstraint(Sketcher.Constraint("Coincident", 3, 2, -1, 1))
sketch22.addConstraint(Sketcher.Constraint("DistanceX", 1, 1, 1, 2, 105.0))
sketch22.addConstraint(Sketcher.Constraint("DistanceY", 0, 1, 0, 2, 20.0))
pad11 = body.newObject("PartDesign::Pad", "Pad010")
pad11.Profile = sketch22
pad11.Length = 2

# Sketch on XZ plane
sketch23 = body.newObject("Sketcher::SketchObject", "Sketch022")
sketch23.AttachmentSupport = (doc.getObject("XZ_Plane"), [""])
sketch23.MapMode = "FlatFace"
add_polygon(sketch23, [(50, 20), (50, 17), (102, 17), (102, 0), (105, 0), (105, 20)])  # lines 0-5
sketch23.addConstraint(Sketcher.Constraint("Vertical", 0))
sketch23.addConstraint(Sketcher.Constraint("Horizontal", 1))
sketch23.addConstraint(Sketcher.Constraint("Vertical", 2))
sketch23.addConstraint(Sketcher.Constraint("Horizontal", 3))
sketch23.addConstraint(Sketcher.Constraint("Vertical", 4))
sketch23.addConstraint(Sketcher.Constraint("Horizontal", 5))
sketch23.addConstraint(Sketcher.Constraint("PointOnObject", 2, 2, -1))
sketch23.addConstraint(Sketcher.Constraint("Equal", 3, 0))
sketch23.addConstraint(Sketcher.Constraint("DistanceX", 1, 1, 1, 2, 52.0))
sketch23.addConstraint(Sketcher.Constraint("DistanceX", 3, 1, 3, 2, 3.0))
sketch23.addConstraint(Sketcher.Constraint("DistanceY", 2, 2, 2, 1, 17.0))
sketch23.addConstraint(Sketcher.Constraint("DistanceX", -1, 1, 0, 2, 50.0))
pad12 = body.newObject("PartDesign::Pad", "Pad011")
pad12.Profile = sketch23
pad12.Length = 18

# Sketch on XZ plane
sketch24 = body.newObject("Sketcher::SketchObject", "Sketch023")
sketch24.AttachmentSupport = (doc.getObject("XZ_Plane"), [""])
sketch24.MapMode = "FlatFace"
add_polygon(sketch24, [(0, 20), (0, 0), (50, 0), (50, 20)])  # lines 0-3
sketch24.addConstraint(Sketcher.Constraint("Vertical", 0))
sketch24.addConstraint(Sketcher.Constraint("Horizontal", 1))
sketch24.addConstraint(Sketcher.Constraint("Vertical", 2))
sketch24.addConstraint(Sketcher.Constraint("Horizontal", 3))
sketch24.addConstraint(Sketcher.Constraint("Coincident", 0, 2, -1, 1))
sketch24.addConstraint(Sketcher.Constraint("DistanceX", 1, 1, 1, 2, 50.0))
sketch24.addConstraint(Sketcher.Constraint("DistanceY", 0, 2, 0, 1, 20.0))
pocket12 = body.newObject("PartDesign::Pocket", "Pocket011")
pocket12.Profile = sketch24
pocket12.Length = 18

# Sketch on XZ plane
sketch25 = body.newObject("Sketcher::SketchObject", "Sketch024")
sketch25.AttachmentSupport = (doc.getObject("XZ_Plane"), [""])
sketch25.MapMode = "FlatFace"
add_polygon(sketch25, [(3, -167), (3, 0), (0, 0), (0, -167)])  # lines 0-3
sketch25.addConstraint(Sketcher.Constraint("Vertical", 0))
sketch25.addConstraint(Sketcher.Constraint("Horizontal", 1))
sketch25.addConstraint(Sketcher.Constraint("Vertical", 2))
sketch25.addConstraint(Sketcher.Constraint("Horizontal", 3))
sketch25.addConstraint(Sketcher.Constraint("Coincident", 1, 2, -1, 1))
sketch25.addConstraint(Sketcher.Constraint("DistanceX", 1, 2, 1, 1, 3.0))
sketch25.addConstraint(Sketcher.Constraint("DistanceY", 0, 1, 0, 2, 167.0))
pad13 = body.newObject("PartDesign::Pad", "Pad012")
pad13.Profile = sketch25
pad13.Length = 18

# Sketch on XZ plane
sketch26 = body.newObject("Sketcher::SketchObject", "Sketch025")
sketch26.AttachmentSupport = (doc.getObject("XZ_Plane"), [""])
sketch26.MapMode = "FlatFace"
sketch26.addGeometry(Part.Circle(Vector(23.5, -24.5, 0), Vector(0, 0, 1), 2.5), False)
sketch26.addGeometry(Part.Circle(Vector(23.5, -24.5, 0), Vector(0, 0, 1), 1.48), False)
sketch26.addGeometry(Part.Circle(Vector(81.5, -24.5, 0), Vector(0, 0, 1), 2.5), False)
sketch26.addGeometry(Part.Circle(Vector(81.5, -24.5, 0), Vector(0, 0, 1), 1.48), False)
sketch26.addGeometry(Part.Circle(Vector(23.5, -73.5, 0), Vector(0, 0, 1), 2.5), False)
sketch26.addGeometry(Part.Circle(Vector(23.5, -73.5, 0), Vector(0, 0, 1), 1.48), False)
sketch26.addGeometry(Part.Circle(Vector(81.5, -73.5, 0), Vector(0, 0, 1), 2.5), False)
sketch26.addGeometry(Part.Circle(Vector(81.5, -73.5, 0), Vector(0, 0, 1), 1.48), False)
sketch26.addConstraint(Sketcher.Constraint("Coincident", 1, 3, 0, 3))
sketch26.addConstraint(Sketcher.Constraint("Coincident", 3, 3, 2, 3))
sketch26.addConstraint(Sketcher.Constraint("Coincident", 5, 3, 4, 3))
sketch26.addConstraint(Sketcher.Constraint("Coincident", 7, 3, 6, 3))
sketch26.addConstraint(Sketcher.Constraint("Equal", 0, 2))
sketch26.addConstraint(Sketcher.Constraint("Equal", 1, 3))
sketch26.addConstraint(Sketcher.Constraint("Equal", 2, 4))
sketch26.addConstraint(Sketcher.Constraint("Equal", 3, 5))
sketch26.addConstraint(Sketcher.Constraint("Equal", 4, 6))
sketch26.addConstraint(Sketcher.Constraint("Equal", 5, 7))
sketch26.addConstraint(Sketcher.Constraint("Horizontal", 1, 3, 2, 3))
sketch26.addConstraint(Sketcher.Constraint("Horizontal", 5, 3, 6, 3))
sketch26.addConstraint(Sketcher.Constraint("Vertical", 1, 3, 4, 3))
sketch26.addConstraint(Sketcher.Constraint("Vertical", 3, 3, 6, 3))
sketch26.addConstraint(Sketcher.Constraint("Diameter", 0, 5.0))
sketch26.addConstraint(Sketcher.Constraint("Diameter", 1, 2.96))
sketch26.addConstraint(Sketcher.Constraint("DistanceX", 0, 3, 2, 3, 58.0))
sketch26.addConstraint(Sketcher.Constraint("DistanceY", 4, 3, 0, 3, 49.0))
sketch26.addConstraint(Sketcher.Constraint("DistanceX", -1, 1, 0, 3, 23.5))
sketch26.addConstraint(Sketcher.Constraint("DistanceY", 0, 3, -1, 1, 24.5))
pad14 = body.newObject("PartDesign::Pad", "Pad013")
pad14.Profile = sketch26
pad14.Length = 10

# Sketch on XZ plane
sketch27 = body.newObject("Sketcher::SketchObject", "Sketch026")
sketch27.AttachmentSupport = (doc.getObject("XZ_Plane"), [""])
sketch27.MapMode = "FlatFace"
sketch27.addGeometry(Part.Circle(Vector(23.5, -24.5, 0), Vector(0, 0, 1), 1.48), False)
sketch27.addGeometry(Part.Circle(Vector(81.5, -24.5, 0), Vector(0, 0, 1), 1.48), False)
sketch27.addGeometry(Part.Circle(Vector(81.5, -73.5, 0), Vector(0, 0, 1), 1.48), False)
sketch27.addGeometry(Part.Circle(Vector(23.5, -73.5, 0), Vector(0, 0, 1), 1.48), False)
sketch27.addConstraint(Sketcher.Constraint("Equal", 0, 1))
sketch27.addConstraint(Sketcher.Constraint("Equal", 1, 2))
sketch27.addConstraint(Sketcher.Constraint("Equal", 2, 3))
sketch27.addConstraint(Sketcher.Constraint("Horizontal", 0, 3, 1, 3))
sketch27.addConstraint(Sketcher.Constraint("Horizontal", 2, 3, 3, 3))
sketch27.addConstraint(Sketcher.Constraint("Vertical", 1, 3, 2, 3))
sketch27.addConstraint(Sketcher.Constraint("Vertical", 0, 3, 3, 3))
sketch27.addConstraint(Sketcher.Constraint("Diameter", 0, 2.96))
sketch27.addConstraint(Sketcher.Constraint("DistanceX", 0, 3, 1, 3, 58.0))
sketch27.addConstraint(Sketcher.Constraint("DistanceY", 2, 3, 1, 3, 49.0))
sketch27.addConstraint(Sketcher.Constraint("DistanceX", -1, 1, 0, 3, 23.5))
sketch27.addConstraint(Sketcher.Constraint("DistanceY", 0, 3, -1, 1, 24.5))
pad15 = body.newObject("PartDesign::Pad", "Pad014")
pad15.Profile = sketch27
pad15.Length = 2

# Sketch on XZ plane
sketch28 = body.newObject("Sketcher::SketchObject", "Sketch027")
sketch28.AttachmentSupport = (doc.getObject("XZ_Plane"), [""])
sketch28.MapMode = "FlatFace"
add_polygon(sketch28, [(77.5, -97), (77.5, -94), (27.5, -94), (27.5, -97)])  # lines 0-3
sketch28.addConstraint(Sketcher.Constraint("Vertical", 0))
sketch28.addConstraint(Sketcher.Constraint("Horizontal", 1))
sketch28.addConstraint(Sketcher.Constraint("Vertical", 2))
sketch28.addConstraint(Sketcher.Constraint("Horizontal", 3))
sketch28.addConstraint(Sketcher.Constraint("DistanceX", 1, 2, 1, 1, 50.0))
sketch28.addConstraint(Sketcher.Constraint("DistanceY", 0, 1, 0, 2, 3.0))
sketch28.addConstraint(Sketcher.Constraint("DistanceY", 0, 2, -1, 1, 94.0))
sketch28.addConstraint(Sketcher.Constraint("DistanceX", -1, 1, 0, 2, 77.5))
pad16 = body.newObject("PartDesign::Pad", "Pad015")
pad16.Profile = sketch28
pad16.Length = 18

doc.recompute()
